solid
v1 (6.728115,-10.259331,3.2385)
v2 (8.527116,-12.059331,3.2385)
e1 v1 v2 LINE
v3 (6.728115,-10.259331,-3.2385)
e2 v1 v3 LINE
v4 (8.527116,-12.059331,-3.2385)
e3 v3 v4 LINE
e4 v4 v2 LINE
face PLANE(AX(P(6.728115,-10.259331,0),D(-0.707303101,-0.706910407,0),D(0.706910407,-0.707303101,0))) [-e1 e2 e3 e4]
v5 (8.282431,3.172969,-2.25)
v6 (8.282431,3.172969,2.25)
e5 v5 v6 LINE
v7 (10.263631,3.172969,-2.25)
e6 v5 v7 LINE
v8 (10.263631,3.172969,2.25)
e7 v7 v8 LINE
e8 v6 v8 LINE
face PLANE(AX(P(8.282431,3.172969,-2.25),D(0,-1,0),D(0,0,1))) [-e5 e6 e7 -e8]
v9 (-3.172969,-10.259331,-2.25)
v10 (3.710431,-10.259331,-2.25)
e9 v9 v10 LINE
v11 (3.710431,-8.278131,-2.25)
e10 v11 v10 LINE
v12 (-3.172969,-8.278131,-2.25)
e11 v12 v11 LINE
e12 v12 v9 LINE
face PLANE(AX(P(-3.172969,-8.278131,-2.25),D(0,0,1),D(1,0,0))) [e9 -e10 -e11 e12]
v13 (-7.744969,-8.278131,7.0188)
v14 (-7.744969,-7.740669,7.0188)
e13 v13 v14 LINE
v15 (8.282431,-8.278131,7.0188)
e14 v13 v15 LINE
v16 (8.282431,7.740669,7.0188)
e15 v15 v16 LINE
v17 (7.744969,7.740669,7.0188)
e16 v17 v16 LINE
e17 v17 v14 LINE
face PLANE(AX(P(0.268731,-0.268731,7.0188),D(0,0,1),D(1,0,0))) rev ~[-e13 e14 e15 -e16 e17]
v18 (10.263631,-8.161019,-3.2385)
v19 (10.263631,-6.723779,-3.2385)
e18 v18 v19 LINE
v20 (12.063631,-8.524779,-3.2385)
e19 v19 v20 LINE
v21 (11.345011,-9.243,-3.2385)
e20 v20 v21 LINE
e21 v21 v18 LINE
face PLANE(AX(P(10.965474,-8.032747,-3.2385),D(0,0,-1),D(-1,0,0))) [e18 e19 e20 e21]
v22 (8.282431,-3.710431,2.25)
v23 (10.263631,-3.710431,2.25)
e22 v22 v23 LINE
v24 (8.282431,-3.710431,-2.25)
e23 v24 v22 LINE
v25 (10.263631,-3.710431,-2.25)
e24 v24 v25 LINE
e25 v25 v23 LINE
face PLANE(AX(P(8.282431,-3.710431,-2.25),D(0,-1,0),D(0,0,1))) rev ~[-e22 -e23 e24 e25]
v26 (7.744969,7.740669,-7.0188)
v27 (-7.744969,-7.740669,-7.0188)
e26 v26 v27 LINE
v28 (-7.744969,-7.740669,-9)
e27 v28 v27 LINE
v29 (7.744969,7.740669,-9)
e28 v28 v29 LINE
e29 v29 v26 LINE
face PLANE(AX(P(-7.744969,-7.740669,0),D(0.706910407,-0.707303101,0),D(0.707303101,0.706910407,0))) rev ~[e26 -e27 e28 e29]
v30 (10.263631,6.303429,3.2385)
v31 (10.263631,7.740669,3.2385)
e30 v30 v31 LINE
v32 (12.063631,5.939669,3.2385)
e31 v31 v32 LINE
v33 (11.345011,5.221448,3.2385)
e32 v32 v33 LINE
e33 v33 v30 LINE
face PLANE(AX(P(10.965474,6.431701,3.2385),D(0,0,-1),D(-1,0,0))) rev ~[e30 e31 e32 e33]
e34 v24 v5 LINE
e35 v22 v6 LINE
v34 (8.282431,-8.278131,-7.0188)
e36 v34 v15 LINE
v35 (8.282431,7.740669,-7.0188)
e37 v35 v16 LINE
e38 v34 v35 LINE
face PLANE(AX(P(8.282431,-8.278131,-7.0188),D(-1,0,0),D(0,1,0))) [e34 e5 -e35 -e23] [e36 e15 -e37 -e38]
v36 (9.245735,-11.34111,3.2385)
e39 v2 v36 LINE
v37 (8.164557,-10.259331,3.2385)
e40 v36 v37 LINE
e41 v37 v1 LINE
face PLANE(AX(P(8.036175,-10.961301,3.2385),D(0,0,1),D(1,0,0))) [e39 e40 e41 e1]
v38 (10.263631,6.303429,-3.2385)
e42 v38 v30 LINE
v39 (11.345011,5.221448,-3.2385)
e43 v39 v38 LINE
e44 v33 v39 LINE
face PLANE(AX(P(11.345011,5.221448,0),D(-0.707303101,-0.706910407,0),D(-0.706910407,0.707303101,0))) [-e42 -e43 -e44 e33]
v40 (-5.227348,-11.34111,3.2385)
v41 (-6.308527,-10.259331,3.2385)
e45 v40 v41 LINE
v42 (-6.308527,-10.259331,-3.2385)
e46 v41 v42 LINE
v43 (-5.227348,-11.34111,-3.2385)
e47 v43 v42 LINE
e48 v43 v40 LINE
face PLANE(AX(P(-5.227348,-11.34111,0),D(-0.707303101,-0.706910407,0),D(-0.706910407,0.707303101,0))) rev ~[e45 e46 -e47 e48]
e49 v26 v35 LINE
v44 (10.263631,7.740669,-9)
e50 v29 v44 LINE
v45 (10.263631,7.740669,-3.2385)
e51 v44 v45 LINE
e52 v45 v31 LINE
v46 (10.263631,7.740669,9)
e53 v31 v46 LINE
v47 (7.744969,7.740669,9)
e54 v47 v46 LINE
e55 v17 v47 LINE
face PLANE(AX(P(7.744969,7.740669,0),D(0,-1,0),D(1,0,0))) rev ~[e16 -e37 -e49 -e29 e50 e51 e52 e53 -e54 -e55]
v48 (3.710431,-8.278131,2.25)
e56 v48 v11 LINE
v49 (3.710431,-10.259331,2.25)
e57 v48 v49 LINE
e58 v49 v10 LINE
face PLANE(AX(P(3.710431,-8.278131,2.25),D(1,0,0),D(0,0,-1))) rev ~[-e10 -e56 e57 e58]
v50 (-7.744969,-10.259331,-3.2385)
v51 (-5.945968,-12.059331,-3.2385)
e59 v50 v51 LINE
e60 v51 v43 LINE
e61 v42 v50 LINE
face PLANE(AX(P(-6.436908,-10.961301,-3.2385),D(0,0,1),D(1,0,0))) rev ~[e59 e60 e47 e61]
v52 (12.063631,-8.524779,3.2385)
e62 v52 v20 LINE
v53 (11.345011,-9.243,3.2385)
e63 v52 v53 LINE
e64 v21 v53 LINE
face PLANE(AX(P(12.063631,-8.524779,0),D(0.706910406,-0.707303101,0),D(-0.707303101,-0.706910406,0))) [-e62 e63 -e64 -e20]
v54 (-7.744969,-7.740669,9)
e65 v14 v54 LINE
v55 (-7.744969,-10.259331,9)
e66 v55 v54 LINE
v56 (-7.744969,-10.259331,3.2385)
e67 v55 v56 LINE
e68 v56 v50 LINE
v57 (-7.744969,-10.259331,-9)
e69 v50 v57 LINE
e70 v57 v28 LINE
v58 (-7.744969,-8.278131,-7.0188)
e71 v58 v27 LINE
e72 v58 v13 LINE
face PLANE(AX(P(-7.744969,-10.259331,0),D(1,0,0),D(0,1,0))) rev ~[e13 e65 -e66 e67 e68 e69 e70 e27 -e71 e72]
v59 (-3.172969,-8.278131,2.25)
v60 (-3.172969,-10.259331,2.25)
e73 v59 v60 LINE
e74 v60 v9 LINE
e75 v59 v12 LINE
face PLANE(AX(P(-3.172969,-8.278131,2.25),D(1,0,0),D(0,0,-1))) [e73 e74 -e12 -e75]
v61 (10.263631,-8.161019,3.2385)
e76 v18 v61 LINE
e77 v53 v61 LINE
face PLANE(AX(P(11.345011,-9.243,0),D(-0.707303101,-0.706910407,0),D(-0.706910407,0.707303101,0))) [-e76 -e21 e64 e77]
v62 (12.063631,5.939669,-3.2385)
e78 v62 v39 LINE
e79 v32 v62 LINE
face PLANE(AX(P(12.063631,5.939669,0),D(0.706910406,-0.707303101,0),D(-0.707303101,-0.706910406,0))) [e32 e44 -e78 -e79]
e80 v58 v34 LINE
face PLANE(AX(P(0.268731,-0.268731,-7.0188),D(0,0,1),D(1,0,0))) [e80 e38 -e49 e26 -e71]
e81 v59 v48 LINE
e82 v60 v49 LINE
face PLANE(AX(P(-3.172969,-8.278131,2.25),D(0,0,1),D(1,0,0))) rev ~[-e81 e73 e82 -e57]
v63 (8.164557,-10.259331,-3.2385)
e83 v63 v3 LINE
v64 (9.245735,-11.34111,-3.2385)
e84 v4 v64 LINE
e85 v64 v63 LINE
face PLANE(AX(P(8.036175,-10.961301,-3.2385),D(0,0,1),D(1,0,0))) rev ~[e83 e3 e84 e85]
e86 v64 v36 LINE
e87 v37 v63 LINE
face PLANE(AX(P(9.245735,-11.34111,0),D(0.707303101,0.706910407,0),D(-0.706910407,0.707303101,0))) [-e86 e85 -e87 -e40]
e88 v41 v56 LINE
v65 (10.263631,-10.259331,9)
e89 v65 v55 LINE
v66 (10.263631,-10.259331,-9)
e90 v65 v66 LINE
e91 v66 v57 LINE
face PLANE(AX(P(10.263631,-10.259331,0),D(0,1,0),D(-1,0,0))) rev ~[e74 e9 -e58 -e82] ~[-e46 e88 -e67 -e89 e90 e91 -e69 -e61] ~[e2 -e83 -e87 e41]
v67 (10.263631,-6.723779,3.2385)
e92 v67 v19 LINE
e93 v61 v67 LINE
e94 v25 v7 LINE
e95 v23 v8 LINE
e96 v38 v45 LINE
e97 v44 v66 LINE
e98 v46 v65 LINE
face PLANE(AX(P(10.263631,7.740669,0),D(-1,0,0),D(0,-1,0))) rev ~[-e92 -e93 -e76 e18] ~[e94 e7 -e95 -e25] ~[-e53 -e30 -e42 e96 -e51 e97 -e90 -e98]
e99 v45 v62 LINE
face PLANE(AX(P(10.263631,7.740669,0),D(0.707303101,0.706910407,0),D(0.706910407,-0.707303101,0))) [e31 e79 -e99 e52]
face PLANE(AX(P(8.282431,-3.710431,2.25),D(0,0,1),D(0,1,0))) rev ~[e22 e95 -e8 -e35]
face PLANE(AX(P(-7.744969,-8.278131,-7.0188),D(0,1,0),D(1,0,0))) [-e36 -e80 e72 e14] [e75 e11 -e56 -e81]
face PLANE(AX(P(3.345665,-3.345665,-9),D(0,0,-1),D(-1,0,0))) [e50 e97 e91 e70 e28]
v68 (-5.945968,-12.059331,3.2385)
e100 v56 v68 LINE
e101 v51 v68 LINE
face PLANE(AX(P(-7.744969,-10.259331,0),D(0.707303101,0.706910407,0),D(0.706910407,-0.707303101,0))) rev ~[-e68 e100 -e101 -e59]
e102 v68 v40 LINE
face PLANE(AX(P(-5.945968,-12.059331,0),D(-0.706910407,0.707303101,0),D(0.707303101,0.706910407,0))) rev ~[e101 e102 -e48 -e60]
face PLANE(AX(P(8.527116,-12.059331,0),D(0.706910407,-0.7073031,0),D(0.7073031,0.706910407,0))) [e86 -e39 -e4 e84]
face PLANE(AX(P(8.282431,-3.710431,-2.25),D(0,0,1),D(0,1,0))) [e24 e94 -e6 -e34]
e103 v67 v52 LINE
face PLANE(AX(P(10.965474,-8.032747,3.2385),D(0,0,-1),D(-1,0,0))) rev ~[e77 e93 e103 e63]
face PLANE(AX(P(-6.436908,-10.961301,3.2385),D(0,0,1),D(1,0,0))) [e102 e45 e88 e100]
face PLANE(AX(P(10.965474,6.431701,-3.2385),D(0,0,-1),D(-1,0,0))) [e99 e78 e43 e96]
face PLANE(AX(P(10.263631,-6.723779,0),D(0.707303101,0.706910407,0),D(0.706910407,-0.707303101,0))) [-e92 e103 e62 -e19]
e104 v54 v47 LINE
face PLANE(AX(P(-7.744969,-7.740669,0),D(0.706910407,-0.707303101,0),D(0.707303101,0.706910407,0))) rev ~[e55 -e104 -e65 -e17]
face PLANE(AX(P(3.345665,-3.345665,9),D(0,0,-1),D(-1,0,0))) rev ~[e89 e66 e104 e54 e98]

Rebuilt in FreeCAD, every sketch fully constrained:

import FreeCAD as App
import Part
import Sketcher

doc = App.newDocument("Part")
body = doc.addObject("PartDesign::Body", "Body")

sketch1 = body.newObject("Sketcher::SketchObject", "Sketch")
sketch1.AttachmentSupport = (doc.getObject("XY_Plane"), [""])
sketch1.MapMode = "FlatFace"
sketch1.addGeometry(Part.LineSegment(App.Vector(10.3, -10.3, 0), App.Vector(10.3, 7.7, 0)), False)
sketch1.addGeometry(Part.LineSegment(App.Vector(10.3, 7.7, 0), App.Vector(7.7, 7.7, 0)), False)
sketch1.addGeometry(Part.LineSegment(App.Vector(7.7, 7.7, 0), App.Vector(-7.7, -7.7, 0)), False)
sketch1.addGeometry(Part.LineSegment(App.Vector(-7.7, -7.7, 0), App.Vector(-7.7, -10.3, 0)), False)
sketch1.addGeometry(Part.LineSegment(App.Vector(-7.7, -10.3, 0), App.Vector(10.3, -10.3, 0)), False)
sketch1.addConstraint(Sketcher.Constraint("Coincident", 0, 2, 1, 1))
sketch1.addConstraint(Sketcher.Constraint("Coincident", 1, 2, 2, 1))
sketch1.addConstraint(Sketcher.Constraint("Coincident", 2, 2, 3, 1))
sketch1.addConstraint(Sketcher.Constraint("Coincident", 3, 2, 4, 1))
sketch1.addConstraint(Sketcher.Constraint("Coincident", 4, 2, 0, 1))
sketch1.addConstraint(Sketcher.Constraint("Vertical", 0))
sketch1.addConstraint(Sketcher.Constraint("Horizontal", 1))
sketch1.addConstraint(Sketcher.Constraint("Vertical", 3))
sketch1.addConstraint(Sketcher.Constraint("Horizontal", 4))
sketch1.addConstraint(Sketcher.Constraint("Symmetric", 1, 2, 2, 2, -1, 1))
sketch1.addConstraint(Sketcher.Constraint("Equal", 1, 3))
sketch1.addConstraint(Sketcher.Constraint("DistanceY", 0, 1, 0, 2, 18.0))
sketch1.addConstraint(Sketcher.Constraint("Distance", 2, 21.9))
sketch1.addConstraint(Sketcher.Constraint("DistanceX", 4, 1, 4, 2, 18.0086))
pad1 = body.newObject("PartDesign::Pad", "Pad")
pad1.Profile = sketch1
pad1.Length = 18
pad1.Midplane = True

sketch2 = body.newObject("Sketcher::SketchObject", "Sketch001")
sketch2.AttachmentSupport = (doc.getObject("XY_Plane"), [""])
sketch2.MapMode = "FlatFace"
sketch2.addGeometry(Part.LineSegment(App.Vector(-8, 8, 0), App.Vector(-8, -8, 0)), False)
sketch2.addGeometry(Part.LineSegment(App.Vector(-8, -8, 0), App.Vector(8, -8, 0)), False)
sketch2.addGeometry(Part.LineSegment(App.Vector(8, -8, 0), App.Vector(8, 8, 0)), False)
sketch2.addGeometry(Part.LineSegment(App.Vector(8, 8, 0), App.Vector(-8, 8, 0)), False)
sketch2.addConstraint(Sketcher.Constraint("Coincident", 0, 2, 1, 1))
sketch2.addConstraint(Sketcher.Constraint("Coincident", 1, 2, 2, 1))
sketch2.addConstraint(Sketcher.Constraint("Coincident", 2, 2, 3, 1))
sketch2.addConstraint(Sketcher.Constraint("Coincident", 3, 2, 0, 1))
sketch2.addConstraint(Sketcher.Constraint("Vertical", 0))
sketch2.addConstraint(Sketcher.Constraint("Horizontal", 1))
sketch2.addConstraint(Sketcher.Constraint("Vertical", 2))
sketch2.addConstraint(Sketcher.Constraint("Horizontal", 3))
sketch2.addConstraint(Sketcher.Constraint("DistanceX", 1, 1, 1, 2, 16.0274))
sketch2.addConstraint(Sketcher.Constraint("DistanceY", 0, 2, 0, 1, 16.0188))
sketch2.addConstraint(Sketcher.Constraint("DistanceX", 0, 2, -1, 1, 7.744969))
sketch2.addConstraint(Sketcher.Constraint("DistanceY", 0, 2, -1, 1, 8.278131))
pocket1 = body.newObject("PartDesign::Pocket", "Pocket")
pocket1.Profile = sketch2
pocket1.Type = "TwoLengths"
pocket1.Length = 7.0188
pocket1.Length2 = 7.0188
pocket1.Reversed = True

sketch3 = body.newObject("Sketcher::SketchObject", "Sketch002")
sketch3.AttachmentSupport = (doc.getObject("XZ_Plane"), [""])
sketch3.MapMode = "FlatFace"
sketch3.AttachmentOffset = App.Placement(App.Vector(0, 0, 8.278131), App.Rotation())
sketch3.addGeometry(Part.LineSegment(App.Vector(-3.2, -2.2, 0), App.Vector(-3.2, 2.2, 0)), False)
sketch3.addGeometry(Part.LineSegment(App.Vector(-3.2, 2.2, 0), App.Vector(3.7, 2.2, 0)), False)
sketch3.addGeometry(Part.LineSegment(App.Vector(3.7, 2.2, 0), App.Vector(3.7, -2.2, 0)), False)
sketch3.addGeometry(Part.LineSegment(App.Vector(3.7, -2.2, 0), App.Vector(-3.2, -2.2, 0)), False)
sketch3.addConstraint(Sketcher.Constraint("Coincident", 0, 2, 1, 1))
sketch3.addConstraint(Sketcher.Constraint("Coincident", 1, 2, 2, 1))
sketch3.addConstraint(Sketcher.Constraint("Coincident", 2, 2, 3, 1))
sketch3.addConstraint(Sketcher.Constraint("Coincident", 3, 2, 0, 1))
sketch3.addConstraint(Sketcher.Constraint("Vertical", 0))
sketch3.addConstraint(Sketcher.Constraint("Horizontal", 1))
sketch3.addConstraint(Sketcher.Constraint("Vertical", 2))
sketch3.addConstraint(Sketcher.Constraint("Horizontal", 3))
sketch3.addConstraint(Sketcher.Constraint("DistanceY", 0, 1, 0, 2, 4.5))
sketch3.addConstraint(Sketcher.Constraint("DistanceY", -1, 1, 0, 2, 2.25))
sketch3.addConstraint(Sketcher.Constraint("DistanceX", 1, 1, 1, 2, 6.8834))
sketch3.addConstraint(Sketcher.Constraint("DistanceX", 0, 2, -1, 1, 3.172969))
pocket2 = body.newObject("PartDesign::Pocket", "Pocket001")
pocket2.Profile = sketch3
pocket2.Type = "ThroughAll"
pocket2.Reversed = True

sketch4 = body.newObject("Sketcher::SketchObject", "Sketch003")
sketch4.AttachmentSupport = (doc.getObject("YZ_Plane"), [""])
sketch4.MapMode = "FlatFace"
sketch4.AttachmentOffset = App.Placement(App.Vector(0, 0, 8.282431), App.Rotation())
sketch4.addGeometry(Part.LineSegment(App.Vector(3.2, -2.2, 0), App.Vector(-3.7, -2.2, 0)), False)
sketch4.addGeometry(Part.LineSegment(App.Vector(-3.7, -2.2, 0), App.Vector(-3.7, 2.2, 0)), False)
sketch4.addGeometry(Part.LineSegment(App.Vector(-3.7, 2.2, 0), App.Vector(3.2, 2.2, 0)), False)
sketch4.addGeometry(Part.LineSegment(App.Vector(3.2, 2.2, 0), App.Vector(3.2, -2.2, 0)), False)
sketch4.addConstraint(Sketcher.Constraint("Coincident", 0, 2, 1, 1))
sketch4.addConstraint(Sketcher.Constraint("Coincident", 1, 2, 2, 1))
sketch4.addConstraint(Sketcher.Constraint("Coincident", 2, 2, 3, 1))
sketch4.addConstraint(Sketcher.Constraint("Coincident", 3, 2, 0, 1))
sketch4.addConstraint(Sketcher.Constraint("Horizontal", 0))
sketch4.addConstraint(Sketcher.Constraint("Vertical", 1))
sketch4.addConstraint(Sketcher.Constraint("Horizontal", 2))
sketch4.addConstraint(Sketcher.Constraint("Vertical", 3))
sketch4.addConstraint(Sketcher.Constraint("DistanceY", 1, 1, 1, 2, 4.5))
sketch4.addConstraint(Sketcher.Constraint("DistanceY", 0, 2, -1, 1, 2.25))
sketch4.addConstraint(Sketcher.Constraint("DistanceX", 0, 2, 0, 1, 6.8834))
sketch4.addConstraint(Sketcher.Constraint("DistanceX", 0, 2, -1, 1, 3.710431))
pocket3 = body.newObject("PartDesign::Pocket", "Pocket002")
pocket3.Profile = sketch4
pocket3.Type = "ThroughAll"
pocket3.Reversed = True

sketch5 = body.newObject("Sketcher::SketchObject", "Sketch004")
sketch5.AttachmentSupport = (doc.getObject("XY_Plane"), [""])
sketch5.MapMode = "FlatFace"
sketch5.addGeometry(Part.LineSegment(App.Vector(12.1, 5.9, 0), App.Vector(10.3, 7.7, 0)), False)
sketch5.addGeometry(Part.LineSegment(App.Vector(10.3, 7.7, 0), App.Vector(10.3, 6.3, 0)), False)
sketch5.addGeometry(Part.LineSegment(App.Vector(10.3, 6.3, 0), App.Vector(11.3, 5.2, 0)), False)
sketch5.addGeometry(Part.LineSegment(App.Vector(11.3, 5.2, 0), App.Vector(12.1, 5.9, 0)), False)
sketch5.addGeometry(Part.LineSegment(App.Vector(10.3, -6.7, 0), App.Vector(10.3, -8.2, 0)), False)
sketch5.addGeometry(Part.LineSegment(App.Vector(10.3, -8.2, 0), App.Vector(11.3, -9.2, 0)), False)
sketch5.addGeometry(Part.LineSegment(App.Vector(11.3, -9.2, 0), App.Vector(12.1, -8.5, 0)), False)
sketch5.addGeometry(Part.LineSegment(App.Vector(12.1, -8.5, 0), App.Vector(10.3, -6.7, 0)), False)
sketch5.addGeometry(Part.LineSegment(App.Vector(-7.7, -10.3, 0), App.Vector(-5.9, -12.1, 0)), False)
sketch5.addGeometry(Part.LineSegment(App.Vector(-5.9, -12.1, 0), App.Vector(-5.2, -11.3, 0)), False)
sketch5.addGeometry(Part.LineSegment(App.Vector(-5.2, -11.3, 0), App.Vector(-6.3, -10.3, 0)), False)
sketch5.addGeometry(Part.LineSegment(App.Vector(-6.3, -10.3, 0), App.Vector(-7.7, -10.3, 0)), False)
sketch5.addGeometry(Part.LineSegment(App.Vector(6.7, -10.3, 0), App.Vector(8.5, -12.1, 0)), False)
sketch5.addGeometry(Part.LineSegment(App.Vector(8.5, -12.1, 0), App.Vector(9.2, -11.3, 0)), False)
sketch5.addGeometry(Part.LineSegment(App.Vector(9.2, -11.3, 0), App.Vector(8.2, -10.3, 0)), False)
sketch5.addGeometry(Part.LineSegment(App.Vector(8.2, -10.3, 0), App.Vector(6.7, -10.3, 0)), False)
sketch5.addConstraint(Sketcher.Constraint("Coincident", 0, 2, 1, 1))
sketch5.addConstraint(Sketcher.Constraint("Coincident", 1, 2, 2, 1))
sketch5.addConstraint(Sketcher.Constraint("Coincident", 2, 2, 3, 1))
sketch5.addConstraint(Sketcher.Constraint("Coincident", 3, 2, 0, 1))
sketch5.addConstraint(Sketcher.Constraint("Coincident", 4, 2, 5, 1))
sketch5.addConstraint(Sketcher.Constraint("Coincident", 5, 2, 6, 1))
sketch5.addConstraint(Sketcher.Constraint("Coincident", 6, 2, 7, 1))
sketch5.addConstraint(Sketcher.Constraint("Coincident", 7, 2, 4, 1))
sketch5.addConstraint(Sketcher.Constraint("Coincident", 8, 2, 9, 1))
sketch5.addConstraint(Sketcher.Constraint("Coincident", 9, 2, 10, 1))
sketch5.addConstraint(Sketcher.Constraint("Coincident", 10, 2, 11, 1))
sketch5.addConstraint(Sketcher.Constraint("Coincident", 11, 2, 8, 1))
sketch5.addConstraint(Sketcher.Constraint("Coincident", 12, 2, 13, 1))
sketch5.addConstraint(Sketcher.Constraint("Coincident", 13, 2, 14, 1))
sketch5.addConstraint(Sketcher.Constraint("Coincident", 14, 2, 15, 1))
sketch5.addConstraint(Sketcher.Constraint("Coincident", 15, 2, 12, 1))
sketch5.addConstraint(Sketcher.Constraint("Vertical", 1))
sketch5.addConstraint(Sketcher.Constraint("Vertical", 4))
sketch5.addConstraint(Sketcher.Constraint("Horizontal", 11))
sketch5.addConstraint(Sketcher.Constraint("Horizontal", 15))
sketch5.addConstraint(Sketcher.Constraint("Parallel", 0, 2))
sketch5.addConstraint(Sketcher.Constraint("Perpendicular", 2, 3))
sketch5.addConstraint(Sketcher.Constraint("Perpendicular", 3, 5))
sketch5.addConstraint(Sketcher.Constraint("Perpendicular", 5, 6))
sketch5.addConstraint(Sketcher.Constraint("Perpendicular", 6, 7))
sketch5.addConstraint(Sketcher.Constraint("Parallel", 7, 8))
sketch5.addConstraint(Sketcher.Constraint("Perpendicular", 8, 9))
sketch5.addConstraint(Sketcher.Constraint("Perpendicular", 9, 10))
sketch5.addConstraint(Sketcher.Constraint("Parallel", 10, 12))
sketch5.addConstraint(Sketcher.Constraint("Perpendicular", 12, 13))
sketch5.addConstraint(Sketcher.Constraint("Perpendicular", 13, 14))
sketch5.addConstraint(Sketcher.Constraint("Horizontal", 8, 2, 12, 2))
sketch5.addConstraint(Sketcher.Constraint("Horizontal", 9, 2, 13, 2))
sketch5.addConstraint(Sketcher.Constraint("Horizontal", 11, 2, 14, 2))
sketch5.addConstraint(Sketcher.Constraint("Vertical", 1, 2, 4, 2))
sketch5.addConstraint(Sketcher.Constraint("Vertical", 2, 2, 5, 2))
sketch5.addConstraint(Sketcher.Constraint("Vertical", 3, 2, 6, 2))
sketch5.addConstraint(Sketcher.Constraint("Equal", 6, 9))
sketch5.addConstraint(Sketcher.Constraint("DistanceX", 1, 2, 3, 2, 1.8))
sketch5.addConstraint(Sketcher.Constraint("DistanceY", 8, 2, 10, 2, 1.8))
sketch5.addConstraint(Sketcher.Constraint("Distance", 3, 1.016))
sketch5.addConstraint(Sketcher.Constraint("DistanceY", 5, 2, -1, 1, 9.243))
sketch5.addConstraint(Sketcher.Constraint("DistanceY", 3, 2, 0, 2, 1.801))
sketch5.addConstraint(Sketcher.Constraint("DistanceX", 8, 2, 4, 2, 16.209599))
sketch5.addConstraint(Sketcher.Constraint("DistanceX", -1, 1, 0, 2, 10.263631))
sketch5.addConstraint(Sketcher.Constraint("DistanceY", -1, 1, 0, 2, 7.740669))
sketch5.addConstraint(Sketcher.Constraint("DistanceY", 8, 2, -1, 1, 12.059331))
sketch5.addConstraint(Sketcher.Constraint("DistanceX", -1, 1, 12, 2, 8.527116))
pad2 = body.newObject("PartDesign::Pad", "Pad001")
pad2.Profile = sketch5
pad2.Length = 6.477
pad2.Midplane = True

doc.recompute()
